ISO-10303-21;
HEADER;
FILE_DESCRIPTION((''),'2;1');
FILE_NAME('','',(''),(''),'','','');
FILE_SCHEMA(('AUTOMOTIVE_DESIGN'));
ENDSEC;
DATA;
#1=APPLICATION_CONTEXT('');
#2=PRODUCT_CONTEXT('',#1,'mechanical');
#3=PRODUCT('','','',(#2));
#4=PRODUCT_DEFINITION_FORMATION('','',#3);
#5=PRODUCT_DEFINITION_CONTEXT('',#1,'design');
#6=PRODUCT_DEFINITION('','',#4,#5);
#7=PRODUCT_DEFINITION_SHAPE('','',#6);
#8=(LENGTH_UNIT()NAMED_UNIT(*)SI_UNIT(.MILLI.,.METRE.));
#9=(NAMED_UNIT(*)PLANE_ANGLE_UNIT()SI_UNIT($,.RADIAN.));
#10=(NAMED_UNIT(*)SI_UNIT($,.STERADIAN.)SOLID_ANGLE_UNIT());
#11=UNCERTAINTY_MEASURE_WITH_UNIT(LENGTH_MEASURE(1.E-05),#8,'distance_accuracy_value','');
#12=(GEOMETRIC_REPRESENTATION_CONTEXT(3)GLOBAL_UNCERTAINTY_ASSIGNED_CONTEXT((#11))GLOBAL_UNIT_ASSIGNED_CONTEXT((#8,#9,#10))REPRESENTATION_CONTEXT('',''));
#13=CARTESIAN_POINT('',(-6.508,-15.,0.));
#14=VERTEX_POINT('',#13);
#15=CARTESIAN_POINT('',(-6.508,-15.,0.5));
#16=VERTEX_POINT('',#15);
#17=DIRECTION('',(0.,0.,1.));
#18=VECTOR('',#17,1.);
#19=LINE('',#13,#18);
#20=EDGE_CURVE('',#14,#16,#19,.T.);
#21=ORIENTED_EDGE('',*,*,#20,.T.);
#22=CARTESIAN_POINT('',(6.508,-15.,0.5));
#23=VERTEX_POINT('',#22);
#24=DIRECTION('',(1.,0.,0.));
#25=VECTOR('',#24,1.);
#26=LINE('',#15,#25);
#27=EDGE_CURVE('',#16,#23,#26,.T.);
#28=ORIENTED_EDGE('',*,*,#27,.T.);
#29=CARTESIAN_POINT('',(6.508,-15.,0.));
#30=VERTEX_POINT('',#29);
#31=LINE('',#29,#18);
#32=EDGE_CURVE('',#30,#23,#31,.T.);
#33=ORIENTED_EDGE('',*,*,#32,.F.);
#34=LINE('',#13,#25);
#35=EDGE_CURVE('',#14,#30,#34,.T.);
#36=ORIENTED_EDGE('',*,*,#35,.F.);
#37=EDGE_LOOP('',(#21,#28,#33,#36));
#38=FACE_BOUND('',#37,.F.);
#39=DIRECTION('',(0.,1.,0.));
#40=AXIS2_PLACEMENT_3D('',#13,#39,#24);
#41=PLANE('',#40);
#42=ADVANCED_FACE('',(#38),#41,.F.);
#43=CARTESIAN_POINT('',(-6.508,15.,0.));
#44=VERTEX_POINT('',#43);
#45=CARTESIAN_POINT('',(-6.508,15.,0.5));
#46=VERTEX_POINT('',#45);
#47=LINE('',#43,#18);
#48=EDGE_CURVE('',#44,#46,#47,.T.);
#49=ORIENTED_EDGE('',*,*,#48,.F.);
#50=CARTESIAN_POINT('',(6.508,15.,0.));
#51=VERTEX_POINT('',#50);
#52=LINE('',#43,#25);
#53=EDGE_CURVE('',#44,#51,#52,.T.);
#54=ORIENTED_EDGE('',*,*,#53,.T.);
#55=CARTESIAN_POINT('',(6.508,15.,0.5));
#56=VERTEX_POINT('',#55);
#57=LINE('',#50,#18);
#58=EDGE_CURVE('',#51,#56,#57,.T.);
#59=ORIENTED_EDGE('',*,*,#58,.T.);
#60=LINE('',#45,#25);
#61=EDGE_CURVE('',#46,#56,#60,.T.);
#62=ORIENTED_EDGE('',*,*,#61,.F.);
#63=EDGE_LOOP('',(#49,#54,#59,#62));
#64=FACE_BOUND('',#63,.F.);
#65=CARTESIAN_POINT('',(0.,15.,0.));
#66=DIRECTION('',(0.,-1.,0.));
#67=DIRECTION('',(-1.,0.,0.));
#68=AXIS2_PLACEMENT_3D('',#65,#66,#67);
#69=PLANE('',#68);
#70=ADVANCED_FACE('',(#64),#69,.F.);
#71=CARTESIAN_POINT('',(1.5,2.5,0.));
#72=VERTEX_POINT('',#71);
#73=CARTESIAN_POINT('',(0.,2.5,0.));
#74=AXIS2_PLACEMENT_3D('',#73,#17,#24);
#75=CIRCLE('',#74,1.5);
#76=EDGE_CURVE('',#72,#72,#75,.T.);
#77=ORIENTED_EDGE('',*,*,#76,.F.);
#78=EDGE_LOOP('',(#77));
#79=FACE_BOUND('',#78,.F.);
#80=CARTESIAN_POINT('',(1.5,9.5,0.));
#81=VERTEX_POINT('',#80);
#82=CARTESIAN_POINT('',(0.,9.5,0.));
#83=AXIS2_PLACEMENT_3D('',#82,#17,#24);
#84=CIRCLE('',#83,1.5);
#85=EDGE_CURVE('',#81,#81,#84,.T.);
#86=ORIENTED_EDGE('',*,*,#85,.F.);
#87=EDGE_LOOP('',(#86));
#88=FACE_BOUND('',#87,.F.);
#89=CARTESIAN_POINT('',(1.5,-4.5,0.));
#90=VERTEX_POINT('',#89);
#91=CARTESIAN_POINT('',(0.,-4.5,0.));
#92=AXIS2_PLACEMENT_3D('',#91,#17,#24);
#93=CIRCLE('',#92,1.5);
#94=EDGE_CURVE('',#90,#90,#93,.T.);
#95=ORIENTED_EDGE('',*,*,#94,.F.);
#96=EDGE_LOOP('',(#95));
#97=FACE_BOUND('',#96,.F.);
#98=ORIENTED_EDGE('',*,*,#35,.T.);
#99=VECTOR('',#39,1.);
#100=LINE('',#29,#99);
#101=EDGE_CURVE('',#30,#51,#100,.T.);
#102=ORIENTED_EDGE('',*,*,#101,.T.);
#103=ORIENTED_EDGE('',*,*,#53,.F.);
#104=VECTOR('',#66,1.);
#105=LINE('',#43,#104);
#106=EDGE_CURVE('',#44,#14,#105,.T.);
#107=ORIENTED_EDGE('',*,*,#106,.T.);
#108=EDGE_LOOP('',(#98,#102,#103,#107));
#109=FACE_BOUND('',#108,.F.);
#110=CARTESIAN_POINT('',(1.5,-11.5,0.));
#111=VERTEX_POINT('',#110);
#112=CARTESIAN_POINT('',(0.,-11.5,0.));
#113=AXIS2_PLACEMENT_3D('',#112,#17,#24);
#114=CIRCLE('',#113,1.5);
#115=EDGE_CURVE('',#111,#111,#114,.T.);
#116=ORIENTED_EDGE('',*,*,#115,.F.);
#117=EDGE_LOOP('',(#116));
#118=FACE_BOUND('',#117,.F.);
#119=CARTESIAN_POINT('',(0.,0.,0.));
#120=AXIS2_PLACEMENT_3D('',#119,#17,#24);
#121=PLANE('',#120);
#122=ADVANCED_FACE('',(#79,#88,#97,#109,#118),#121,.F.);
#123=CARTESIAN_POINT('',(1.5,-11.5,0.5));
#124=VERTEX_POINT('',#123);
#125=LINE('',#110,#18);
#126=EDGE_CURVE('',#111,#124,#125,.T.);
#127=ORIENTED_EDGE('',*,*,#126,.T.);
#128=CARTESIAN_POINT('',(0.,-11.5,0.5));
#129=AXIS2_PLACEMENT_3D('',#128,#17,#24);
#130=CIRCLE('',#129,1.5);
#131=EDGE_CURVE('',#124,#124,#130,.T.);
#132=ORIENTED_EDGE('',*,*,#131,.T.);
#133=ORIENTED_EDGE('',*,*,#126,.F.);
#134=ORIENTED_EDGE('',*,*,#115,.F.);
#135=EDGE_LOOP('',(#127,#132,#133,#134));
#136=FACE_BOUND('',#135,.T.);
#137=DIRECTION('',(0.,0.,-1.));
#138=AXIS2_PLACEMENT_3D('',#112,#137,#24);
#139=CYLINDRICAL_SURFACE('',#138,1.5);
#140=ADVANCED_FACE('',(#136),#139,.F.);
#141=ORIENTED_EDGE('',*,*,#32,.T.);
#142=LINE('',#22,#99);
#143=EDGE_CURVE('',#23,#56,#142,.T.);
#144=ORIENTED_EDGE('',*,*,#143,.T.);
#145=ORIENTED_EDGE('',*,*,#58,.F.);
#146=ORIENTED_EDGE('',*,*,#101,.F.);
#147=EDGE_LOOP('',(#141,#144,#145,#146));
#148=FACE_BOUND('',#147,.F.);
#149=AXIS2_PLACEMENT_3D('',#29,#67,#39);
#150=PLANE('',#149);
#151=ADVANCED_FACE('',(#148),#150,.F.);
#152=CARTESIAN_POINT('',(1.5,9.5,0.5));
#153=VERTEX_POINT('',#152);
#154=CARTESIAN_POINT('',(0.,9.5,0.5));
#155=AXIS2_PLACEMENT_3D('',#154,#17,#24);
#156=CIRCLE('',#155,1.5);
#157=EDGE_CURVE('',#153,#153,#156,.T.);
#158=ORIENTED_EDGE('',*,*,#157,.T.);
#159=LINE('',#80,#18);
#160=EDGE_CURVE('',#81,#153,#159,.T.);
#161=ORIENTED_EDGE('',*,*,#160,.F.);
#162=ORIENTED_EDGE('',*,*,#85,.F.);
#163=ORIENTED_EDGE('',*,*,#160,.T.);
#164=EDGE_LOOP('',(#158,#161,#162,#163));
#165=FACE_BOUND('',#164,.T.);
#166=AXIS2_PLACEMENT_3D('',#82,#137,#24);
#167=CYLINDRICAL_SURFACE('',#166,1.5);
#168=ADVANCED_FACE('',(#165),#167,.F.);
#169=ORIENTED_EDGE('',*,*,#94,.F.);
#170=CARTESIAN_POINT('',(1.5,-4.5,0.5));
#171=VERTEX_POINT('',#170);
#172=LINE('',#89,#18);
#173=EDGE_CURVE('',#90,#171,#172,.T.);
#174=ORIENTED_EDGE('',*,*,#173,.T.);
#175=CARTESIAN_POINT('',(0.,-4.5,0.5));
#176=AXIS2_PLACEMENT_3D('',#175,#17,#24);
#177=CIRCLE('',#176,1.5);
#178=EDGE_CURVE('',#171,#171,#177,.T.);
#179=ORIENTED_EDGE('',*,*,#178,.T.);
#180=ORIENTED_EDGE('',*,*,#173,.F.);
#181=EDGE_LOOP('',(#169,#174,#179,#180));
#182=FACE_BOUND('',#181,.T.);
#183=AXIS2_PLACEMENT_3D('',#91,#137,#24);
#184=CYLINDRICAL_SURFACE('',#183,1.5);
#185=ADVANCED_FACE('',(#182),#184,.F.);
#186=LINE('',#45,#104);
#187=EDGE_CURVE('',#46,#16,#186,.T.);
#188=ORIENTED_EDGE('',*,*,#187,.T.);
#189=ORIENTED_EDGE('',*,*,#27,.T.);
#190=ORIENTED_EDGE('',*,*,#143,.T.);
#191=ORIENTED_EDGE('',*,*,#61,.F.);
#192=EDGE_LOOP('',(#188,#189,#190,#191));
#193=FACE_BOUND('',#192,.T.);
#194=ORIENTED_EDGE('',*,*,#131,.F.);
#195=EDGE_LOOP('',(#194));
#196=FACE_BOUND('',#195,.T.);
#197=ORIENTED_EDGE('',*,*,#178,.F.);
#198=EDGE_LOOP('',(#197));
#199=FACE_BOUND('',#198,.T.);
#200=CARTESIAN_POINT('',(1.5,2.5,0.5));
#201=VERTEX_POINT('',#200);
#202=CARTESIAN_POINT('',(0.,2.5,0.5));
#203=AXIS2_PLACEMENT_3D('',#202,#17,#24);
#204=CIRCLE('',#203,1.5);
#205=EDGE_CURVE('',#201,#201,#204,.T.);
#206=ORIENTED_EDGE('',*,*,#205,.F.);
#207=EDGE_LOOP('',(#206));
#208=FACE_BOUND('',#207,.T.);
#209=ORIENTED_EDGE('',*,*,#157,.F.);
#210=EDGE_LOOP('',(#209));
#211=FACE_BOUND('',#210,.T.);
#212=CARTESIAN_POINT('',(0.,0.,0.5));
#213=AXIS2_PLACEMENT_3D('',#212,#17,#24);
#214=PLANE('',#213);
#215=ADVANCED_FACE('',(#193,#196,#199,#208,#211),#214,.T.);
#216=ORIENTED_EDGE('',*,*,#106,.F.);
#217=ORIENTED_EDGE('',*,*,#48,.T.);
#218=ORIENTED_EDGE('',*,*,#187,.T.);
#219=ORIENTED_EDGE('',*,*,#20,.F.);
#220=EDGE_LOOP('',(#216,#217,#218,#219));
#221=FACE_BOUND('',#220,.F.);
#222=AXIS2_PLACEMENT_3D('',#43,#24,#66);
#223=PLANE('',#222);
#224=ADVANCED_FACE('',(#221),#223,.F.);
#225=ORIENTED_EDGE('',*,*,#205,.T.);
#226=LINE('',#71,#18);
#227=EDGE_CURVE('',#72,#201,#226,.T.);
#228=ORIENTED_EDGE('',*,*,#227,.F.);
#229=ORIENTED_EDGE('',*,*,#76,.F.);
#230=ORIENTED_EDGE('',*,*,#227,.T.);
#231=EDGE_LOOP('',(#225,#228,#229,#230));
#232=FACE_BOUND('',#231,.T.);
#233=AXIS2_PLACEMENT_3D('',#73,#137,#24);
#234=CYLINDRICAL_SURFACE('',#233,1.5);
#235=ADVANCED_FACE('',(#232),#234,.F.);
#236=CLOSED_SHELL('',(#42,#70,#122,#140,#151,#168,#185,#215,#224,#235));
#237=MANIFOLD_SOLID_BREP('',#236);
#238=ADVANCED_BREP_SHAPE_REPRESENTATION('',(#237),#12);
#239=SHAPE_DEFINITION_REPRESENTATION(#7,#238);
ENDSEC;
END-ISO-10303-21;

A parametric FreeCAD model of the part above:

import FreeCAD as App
import Part
import Sketcher

V = App.Vector
Q = App.Units.Quantity

doc = App.newDocument("Part")
body = doc.addObject("PartDesign::Body", "Body")

# Sketch on XY plane
sketch1 = body.newObject("Sketcher::SketchObject", "Sketch")
sketch1.AttachmentSupport = (doc.getObject("XY_Plane"), [""])
sketch1.MapMode = "FlatFace"
sketch1.addGeometry([
    Part.LineSegment(V(6.5, -15, 0), V(6.5, 15, 0)),  # 0
    Part.LineSegment(V(6.5, 15, 0), V(-6.5, 15, 0)),  # 1
    Part.LineSegment(V(-6.5, 15, 0), V(-6.5, -15, 0)),  # 2
    Part.LineSegment(V(-6.5, -15, 0), V(6.5, -15, 0)),  # 3
    Part.Circle(V(0, -11.5, 0), V(0, 0, 1), 1.5),  # 4
    Part.Circle(V(0, -4.5, 0), V(0, 0, 1), 1.5),  # 5
    Part.Circle(V(0, 2.5, 0), V(0, 0, 1), 1.5),  # 6
    Part.Circle(V(0, 9.5, 0), V(0, 0, 1), 1.5),  # 7
], False)
sketch1.addConstraint([
    Sketcher.Constraint("Coincident", 0, 2, 1, 1),
    Sketcher.Constraint("Coincident", 1, 2, 2, 1),
    Sketcher.Constraint("Coincident", 2, 2, 3, 1),
    Sketcher.Constraint("Coincident", 3, 2, 0, 1),
    Sketcher.Constraint("Vertical", 0),
    Sketcher.Constraint("Horizontal", 1),
    Sketcher.Constraint("Vertical", 2),
    Sketcher.Constraint("Horizontal", 3),
    Sketcher.Constraint("Equal", 4, 5),
    Sketcher.Constraint("Equal", 5, 6),
    Sketcher.Constraint("Equal", 6, 7),
    Sketcher.Constraint("Symmetric", 0, 2, 2, 2, -1, 1),
    Sketcher.Constraint("PointOnObject", 4, 3, -2),
    Sketcher.Constraint("PointOnObject", 5, 3, -2),
    Sketcher.Constraint("PointOnObject", 6, 3, -2),
    Sketcher.Constraint("PointOnObject", 7, 3, -2),
    Sketcher.Constraint("Diameter", 4, Q("3 mm")),
    Sketcher.Constraint("DistanceY", 0, 1, 0, 2, Q("30 mm")),
    Sketcher.Constraint("DistanceX", 1, 2, 1, 1, Q("13.016 mm")),
    Sketcher.Constraint("DistanceY", 4, 3, 5, 3, Q("7 mm")),
    Sketcher.Constraint("DistanceY", 5, 3, 6, 3, Q("7 mm")),
    Sketcher.Constraint("DistanceY", 6, 3, 7, 3, Q("7 mm")),
    Sketcher.Constraint("DistanceY", 4, 3, -1, 1, Q("11.5 mm")),
])
pad1 = body.newObject("PartDesign::Pad", "Pad")
pad1.Profile = sketch1
pad1.Length = 0.5

doc.recompute()
